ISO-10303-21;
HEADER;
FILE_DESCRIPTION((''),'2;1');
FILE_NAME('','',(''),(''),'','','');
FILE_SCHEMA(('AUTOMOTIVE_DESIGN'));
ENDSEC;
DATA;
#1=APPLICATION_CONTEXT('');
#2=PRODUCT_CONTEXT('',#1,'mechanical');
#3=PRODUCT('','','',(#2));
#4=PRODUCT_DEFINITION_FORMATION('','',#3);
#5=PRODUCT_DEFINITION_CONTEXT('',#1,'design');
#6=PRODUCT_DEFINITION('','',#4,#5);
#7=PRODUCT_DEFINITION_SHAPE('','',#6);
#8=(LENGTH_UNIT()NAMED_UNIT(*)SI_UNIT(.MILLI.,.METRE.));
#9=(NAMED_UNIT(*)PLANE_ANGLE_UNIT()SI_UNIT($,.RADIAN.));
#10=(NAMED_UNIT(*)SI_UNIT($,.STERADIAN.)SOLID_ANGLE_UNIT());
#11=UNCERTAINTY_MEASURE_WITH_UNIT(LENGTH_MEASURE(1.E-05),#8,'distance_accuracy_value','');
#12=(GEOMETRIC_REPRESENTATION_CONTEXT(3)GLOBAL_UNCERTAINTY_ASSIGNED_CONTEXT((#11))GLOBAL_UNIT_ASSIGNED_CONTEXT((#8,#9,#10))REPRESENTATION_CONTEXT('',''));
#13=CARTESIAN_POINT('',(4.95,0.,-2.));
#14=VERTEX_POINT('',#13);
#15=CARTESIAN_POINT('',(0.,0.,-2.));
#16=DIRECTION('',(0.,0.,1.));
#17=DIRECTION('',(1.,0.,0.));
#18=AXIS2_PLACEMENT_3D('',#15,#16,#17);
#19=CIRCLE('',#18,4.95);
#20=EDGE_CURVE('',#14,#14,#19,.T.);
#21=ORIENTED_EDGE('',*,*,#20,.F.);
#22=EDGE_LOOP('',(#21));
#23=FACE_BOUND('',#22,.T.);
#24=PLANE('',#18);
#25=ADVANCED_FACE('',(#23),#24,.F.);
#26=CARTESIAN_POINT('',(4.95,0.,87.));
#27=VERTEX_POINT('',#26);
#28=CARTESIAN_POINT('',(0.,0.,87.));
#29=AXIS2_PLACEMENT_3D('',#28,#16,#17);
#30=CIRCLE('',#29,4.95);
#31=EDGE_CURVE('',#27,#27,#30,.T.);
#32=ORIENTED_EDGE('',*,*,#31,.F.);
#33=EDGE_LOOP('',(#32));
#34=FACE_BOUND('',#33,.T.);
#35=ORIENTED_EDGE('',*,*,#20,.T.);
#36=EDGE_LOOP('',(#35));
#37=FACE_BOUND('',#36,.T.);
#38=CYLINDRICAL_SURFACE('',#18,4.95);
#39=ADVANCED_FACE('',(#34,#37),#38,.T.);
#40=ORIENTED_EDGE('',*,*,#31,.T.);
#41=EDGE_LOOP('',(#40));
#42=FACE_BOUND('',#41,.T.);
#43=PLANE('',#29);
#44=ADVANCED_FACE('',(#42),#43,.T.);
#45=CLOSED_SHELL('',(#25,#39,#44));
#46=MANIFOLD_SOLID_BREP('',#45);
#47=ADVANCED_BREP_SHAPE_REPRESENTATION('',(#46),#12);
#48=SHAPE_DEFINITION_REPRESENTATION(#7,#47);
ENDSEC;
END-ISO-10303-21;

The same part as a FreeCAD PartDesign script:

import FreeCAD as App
import Part
import Sketcher
from FreeCAD import Vector
Q = App.Units.Quantity

doc = App.newDocument("Part")
body = doc.addObject("PartDesign::Body", "Body")

sketch1 = body.newObject("Sketcher::SketchObject", "Sketch")
sketch1.AttachmentSupport = (doc.getObject("XY_Plane"), [""])
sketch1.MapMode = "FlatFace"
sketch1.addGeometry(Part.Circle(Vector(0, 0, 0), Vector(0, 0, 1), 5), False)
sketch1.addConstraint([
    Sketcher.Constraint("Coincident", 0, 3, -1, 1),
    Sketcher.Constraint("Diameter", 0, Q("9.9 mm")),
])
pad1 = body.newObject("PartDesign::Pad", "Pad")
pad1.Profile = sketch1
pad1.Type = "TwoLengths"
pad1.Length = 87
pad1.Length2 = 2

doc.recompute()
